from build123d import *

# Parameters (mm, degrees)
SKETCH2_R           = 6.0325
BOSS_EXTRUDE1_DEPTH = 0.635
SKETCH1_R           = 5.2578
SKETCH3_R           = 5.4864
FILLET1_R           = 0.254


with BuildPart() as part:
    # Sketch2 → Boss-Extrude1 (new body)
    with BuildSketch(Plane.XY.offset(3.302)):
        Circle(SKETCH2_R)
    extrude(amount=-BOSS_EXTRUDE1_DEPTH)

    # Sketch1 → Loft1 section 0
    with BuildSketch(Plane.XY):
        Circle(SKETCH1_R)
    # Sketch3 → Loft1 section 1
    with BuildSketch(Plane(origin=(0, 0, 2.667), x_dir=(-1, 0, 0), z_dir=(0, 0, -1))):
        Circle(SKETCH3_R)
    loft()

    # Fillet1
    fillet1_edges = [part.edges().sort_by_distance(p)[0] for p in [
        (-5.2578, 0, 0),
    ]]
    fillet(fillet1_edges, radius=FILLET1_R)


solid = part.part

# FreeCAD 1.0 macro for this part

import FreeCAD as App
import Part
import Sketcher
from FreeCAD import Vector
Q = App.Units.Quantity


def edges_at(feature, points):
    """Names of the edges that pass closest to the given points."""
    edges = feature.Shape.Edges
    near = lambda p: min(range(len(edges)), key=lambda i: edges[i].distToShape(Part.Vertex(*p))[0])
    return sorted({f"Edge{near(p) + 1}" for p in points})

doc = App.newDocument("Part")
body = doc.addObject("PartDesign::Body", "Body")

# Sketch on XY plane
sketch1 = body.newObject("Sketcher::SketchObject", "Sketch")
sketch1.AttachmentSupport = (doc.getObject("XY_Plane"), [""])
sketch1.MapMode = "FlatFace"
sketch1.AttachmentOffset = App.Placement(Vector(0, 0, 0.13 * 25.4), App.Rotation())
sketch1.addGeometry(Part.Circle(Vector(0, 0, 0), Vector(0, 0, 1), 6.0325), False)
sketch1.addConstraint([
    Sketcher.Constraint("Coincident", 0, 3, -1, 1),
    Sketcher.Constraint("Diameter", 0, Q("0.475 in")),
])
pad1 = body.newObject("PartDesign::Pad", "Pad")
pad1.Profile = sketch1
pad1.Length = Q("0.025 in")
pad1.Reversed = True

# Sketch on XY plane
sketch2 = body.newObject("Sketcher::SketchObject", "Sketch001")
sketch2.AttachmentSupport = (doc.getObject("XY_Plane"), [""])
sketch2.MapMode = "FlatFace"
sketch2.addGeometry(Part.Circle(Vector(0, 0, 0), Vector(0, 0, 1), 5.2578), False)
sketch2.addConstraint([
    Sketcher.Constraint("Coincident", 0, 3, -1, 1),
    Sketcher.Constraint("Diameter", 0, Q("0.414 in")),
])

# Sketch on XY plane
sketch3 = body.newObject("Sketcher::SketchObject", "Sketch002")
sketch3.AttachmentSupport = (doc.getObject("XY_Plane"), [""])
sketch3.MapMode = "FlatFace"
sketch3.AttachmentOffset = App.Placement(Vector(0, 0, 0.105 * 25.4), App.Rotation())
sketch3.addGeometry(Part.Circle(Vector(0, 0, 0), Vector(0, 0, 1), 5.4864), False)
sketch3.addConstraint([
    Sketcher.Constraint("Coincident", 0, 3, -1, 1),
    Sketcher.Constraint("Diameter", 0, Q("0.432 in")),
])

additiveloft = body.newObject("PartDesign::AdditiveLoft", "AdditiveLoft")
additiveloft.Profile = sketch2
additiveloft.Sections = [sketch3]
doc.recompute()

fillet = body.newObject("PartDesign::Fillet", "Fillet")
fillet.Base = (additiveloft, edges_at(additiveloft, [(-5.258, 0, 0)]))
fillet.Radius = Q("0.01 in")

doc.recompute()
